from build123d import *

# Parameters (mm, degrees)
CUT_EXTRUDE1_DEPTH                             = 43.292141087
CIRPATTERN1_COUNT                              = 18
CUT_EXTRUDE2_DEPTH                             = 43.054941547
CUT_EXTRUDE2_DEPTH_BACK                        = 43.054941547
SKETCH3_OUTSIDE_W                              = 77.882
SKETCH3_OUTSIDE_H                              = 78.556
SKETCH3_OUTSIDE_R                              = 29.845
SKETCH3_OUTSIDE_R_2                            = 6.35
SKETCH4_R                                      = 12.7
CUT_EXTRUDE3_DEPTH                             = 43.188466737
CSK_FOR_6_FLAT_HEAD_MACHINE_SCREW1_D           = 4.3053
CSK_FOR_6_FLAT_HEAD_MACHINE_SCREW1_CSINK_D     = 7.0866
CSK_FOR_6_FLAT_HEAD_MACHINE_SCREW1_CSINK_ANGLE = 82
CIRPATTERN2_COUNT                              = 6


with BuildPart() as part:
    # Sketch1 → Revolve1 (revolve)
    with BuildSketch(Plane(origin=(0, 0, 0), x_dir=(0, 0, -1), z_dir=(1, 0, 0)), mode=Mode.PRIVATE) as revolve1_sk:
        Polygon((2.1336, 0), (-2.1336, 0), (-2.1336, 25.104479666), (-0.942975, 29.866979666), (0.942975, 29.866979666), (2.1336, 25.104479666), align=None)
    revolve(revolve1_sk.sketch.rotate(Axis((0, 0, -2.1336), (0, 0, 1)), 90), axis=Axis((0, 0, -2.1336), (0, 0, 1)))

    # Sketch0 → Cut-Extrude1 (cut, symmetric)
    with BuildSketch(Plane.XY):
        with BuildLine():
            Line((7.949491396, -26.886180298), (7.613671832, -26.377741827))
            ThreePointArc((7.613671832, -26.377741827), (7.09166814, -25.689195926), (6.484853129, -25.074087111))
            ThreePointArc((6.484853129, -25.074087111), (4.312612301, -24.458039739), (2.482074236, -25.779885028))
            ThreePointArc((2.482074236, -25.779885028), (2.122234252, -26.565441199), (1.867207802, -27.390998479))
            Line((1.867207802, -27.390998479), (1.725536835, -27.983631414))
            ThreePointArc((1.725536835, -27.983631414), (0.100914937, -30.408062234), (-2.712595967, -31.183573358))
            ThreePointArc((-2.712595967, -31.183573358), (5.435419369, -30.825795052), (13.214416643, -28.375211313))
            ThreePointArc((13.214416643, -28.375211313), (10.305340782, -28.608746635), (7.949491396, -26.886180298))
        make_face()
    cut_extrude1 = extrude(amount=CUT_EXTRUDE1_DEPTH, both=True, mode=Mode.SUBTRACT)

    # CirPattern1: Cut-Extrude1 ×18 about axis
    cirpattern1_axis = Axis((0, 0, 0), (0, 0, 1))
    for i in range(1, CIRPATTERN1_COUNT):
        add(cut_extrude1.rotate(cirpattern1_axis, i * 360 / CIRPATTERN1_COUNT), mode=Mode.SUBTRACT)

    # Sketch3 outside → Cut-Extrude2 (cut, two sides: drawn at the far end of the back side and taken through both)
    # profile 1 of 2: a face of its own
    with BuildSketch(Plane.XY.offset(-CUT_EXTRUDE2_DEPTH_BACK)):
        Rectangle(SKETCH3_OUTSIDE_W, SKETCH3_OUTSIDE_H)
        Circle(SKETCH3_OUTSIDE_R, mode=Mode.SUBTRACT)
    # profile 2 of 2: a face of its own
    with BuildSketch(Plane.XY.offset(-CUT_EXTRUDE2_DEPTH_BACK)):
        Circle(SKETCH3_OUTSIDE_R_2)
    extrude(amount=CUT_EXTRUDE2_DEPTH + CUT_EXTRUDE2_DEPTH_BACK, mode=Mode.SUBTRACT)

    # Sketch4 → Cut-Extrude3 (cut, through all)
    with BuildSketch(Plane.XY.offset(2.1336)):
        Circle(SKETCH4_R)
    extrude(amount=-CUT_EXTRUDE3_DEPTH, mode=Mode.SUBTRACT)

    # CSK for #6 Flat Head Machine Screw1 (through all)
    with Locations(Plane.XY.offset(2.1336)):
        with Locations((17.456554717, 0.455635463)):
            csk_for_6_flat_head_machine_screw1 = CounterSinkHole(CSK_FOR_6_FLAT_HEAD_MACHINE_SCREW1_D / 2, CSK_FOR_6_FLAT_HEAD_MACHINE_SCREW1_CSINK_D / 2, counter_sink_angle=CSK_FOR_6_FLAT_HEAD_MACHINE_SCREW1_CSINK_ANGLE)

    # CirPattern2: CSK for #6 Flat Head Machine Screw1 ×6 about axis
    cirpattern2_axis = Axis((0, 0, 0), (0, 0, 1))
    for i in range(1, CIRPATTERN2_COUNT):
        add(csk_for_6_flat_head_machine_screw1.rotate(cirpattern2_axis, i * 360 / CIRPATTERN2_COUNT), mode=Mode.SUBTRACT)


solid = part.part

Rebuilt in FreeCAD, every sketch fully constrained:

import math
import FreeCAD as App
import Part
import Sketcher
Q = App.Units.Quantity

doc = App.newDocument("Part")
body = doc.addObject("PartDesign::Body", "Body")

# Sketch on YZ plane
sketch1 = body.newObject("Sketcher::SketchObject", "Sketch")
sketch1.AttachmentSupport = (doc.getObject("YZ_Plane"), [""])
sketch1.MapMode = "FlatFace"
sketch1.addGeometry([
    Part.LineSegment(App.Vector(0, 2.1, 0), App.Vector(0, -2.1, 0)),  # 0
    Part.LineSegment(App.Vector(0, -2.1, 0), App.Vector(25.1, -2.1, 0)),  # 1
    Part.LineSegment(App.Vector(25.1, -2.1, 0), App.Vector(29.9, -0.9, 0)),  # 2
    Part.LineSegment(App.Vector(29.9, -0.9, 0), App.Vector(29.9, 0.9, 0)),  # 3
    Part.LineSegment(App.Vector(29.9, 0.9, 0), App.Vector(25.1, 2.1, 0)),  # 4
    Part.LineSegment(App.Vector(25.1, 2.1, 0), App.Vector(0, 2.1, 0)),  # 5
], False)
sketch1.addConstraint([
    Sketcher.Constraint("Coincident", 0, 2, 1, 1),
    Sketcher.Constraint("Coincident", 1, 2, 2, 1),
    Sketcher.Constraint("Coincident", 2, 2, 3, 1),
    Sketcher.Constraint("Coincident", 3, 2, 4, 1),
    Sketcher.Constraint("Coincident", 4, 2, 5, 1),
    Sketcher.Constraint("Coincident", 5, 2, 0, 1),
    Sketcher.Constraint("Vertical", 0),
    Sketcher.Constraint("Horizontal", 1),
    Sketcher.Constraint("Vertical", 3),
    Sketcher.Constraint("Horizontal", 5),
    Sketcher.Constraint("Symmetric", 0, 2, 5, 2, -1, 1),
    Sketcher.Constraint("Vertical", 1, 2, 4, 2),
    Sketcher.Constraint("Equal", 2, 4),
    Sketcher.Constraint("DistanceY", 0, 2, 0, 1, Q("0.168 in")),
    Sketcher.Constraint("DistanceX", 1, 2, 2, 2, Q("0.1875 in")),
    Sketcher.Constraint("DistanceY", 1, 2, 2, 2, Q("0.046875 in")),
    Sketcher.Constraint("DistanceX", 1, 1, 1, 2, Q("25.10448 mm")),
])
revolution = body.newObject("PartDesign::Revolution", "Revolution")
revolution.Profile = sketch1
revolution.ReferenceAxis = (sketch1, ["V_Axis"])
revolution.Angle = 360

# Sketch on XY plane
sketch2 = body.newObject("Sketcher::SketchObject", "Sketch001")
sketch2.AttachmentSupport = (doc.getObject("XY_Plane"), [""])
sketch2.MapMode = "FlatFace"
sketch2.addGeometry([
    Part.LineSegment(App.Vector(7.9, -26.9, 0), App.Vector(7.6, -26.4, 0)),  # 0
    Part.ArcOfCircle(Part.Circle(App.Vector(2.1, -30, 0), App.Vector(0, 0, 1), 6.7), math.radians(33.44), math.radians(48.33)),  # 1
    Part.ArcOfCircle(Part.Circle(App.Vector(4.8, -27, 0), App.Vector(0, 0, 1), 2.6), math.radians(48), math.radians(152)),  # 2
    Part.ArcOfCircle(Part.Circle(App.Vector(8.3, -28.9, 0), App.Vector(0, 0, 1), 6.7), math.radians(151.67), math.radians(166.56)),  # 3
    Part.LineSegment(App.Vector(1.9, -27.4, 0), App.Vector(1.7, -28, 0)),  # 4
    Part.ArcOfCircle(Part.Circle(App.Vector(-2.3, -27, 0), App.Vector(0, 0, 1), 4.2), math.radians(-95), math.radians(-13)),  # 5
    Part.ArcOfCircle(Part.Circle(App.Vector(0, 0, 0), App.Vector(0, 0, 1), 31.3), math.radians(-95), math.radians(-65)),  # 6
    Part.ArcOfCircle(Part.Circle(App.Vector(11.4, -24.6, 0), App.Vector(0, 0, 1), 4.2), math.radians(-147), math.radians(-65)),  # 7
], False)
sketch2.addConstraint([
    Sketcher.Constraint("Tangent", 0, 2, 1, 1),
    Sketcher.Constraint("Tangent", 1, 2, 2, 1),
    Sketcher.Constraint("Tangent", 2, 2, 3, 1),
    Sketcher.Constraint("Tangent", 3, 2, 4, 1),
    Sketcher.Constraint("Tangent", 4, 2, 5, 2),
    Sketcher.Constraint("Tangent", 5, 1, 6, 1),
    Sketcher.Constraint("Tangent", 6, 2, 7, 2),
    Sketcher.Constraint("Tangent", 7, 1, 0, 1),
    Sketcher.Constraint("Coincident", 6, 3, -1, 1),
    Sketcher.Constraint("Equal", 1, 3),
    Sketcher.Constraint("Equal", 5, 7),
    Sketcher.Constraint("Horizontal", 2, 3, 5, 3),
    Sketcher.Constraint("Equal", 0, 4),
    Sketcher.Constraint("Radius", 1, Q("0.262 in")),
    Sketcher.Constraint("Radius", 2, Q("0.102 in")),
    Sketcher.Constraint("DistanceX", 5, 3, 2, 3, Q("0.28 in")),
    Sketcher.Constraint("DistanceX", -1, 1, 2, 3, Q("0.1875 in")),
    Sketcher.Constraint("Radius", 5, Q("4.189856 mm")),
    Sketcher.Constraint("Radius", 6, Q("31.301333 mm")),
    Sketcher.Constraint("DistanceY", 3, 2, -1, 1, Q("27.390998 mm")),
    Sketcher.Constraint("DistanceY", 2, 3, 7, 1, Q("0.123299 mm")),
])
pocket1 = body.newObject("PartDesign::Pocket", "Pocket")
pocket1.Profile = sketch2
pocket1.Length = 86.584282
pocket1.Midplane = True
doc.recompute()

polarpattern = body.newObject("PartDesign::PolarPattern", "PolarPattern")
polarpattern.Originals = [pocket1]
polarpattern.Axis = (doc.getObject("Z_Axis"), [""])
polarpattern.Angle = 360
polarpattern.Occurrences = 18
body.Tip = polarpattern

# Sketch on XY plane
sketch3 = body.newObject("Sketcher::SketchObject", "Sketch002")
sketch3.AttachmentSupport = (doc.getObject("XY_Plane"), [""])
sketch3.MapMode = "FlatFace"
sketch3.addGeometry([
    Part.LineSegment(App.Vector(-39, 39, 0), App.Vector(-39, -39, 0)),  # 0
    Part.LineSegment(App.Vector(-39, -39, 0), App.Vector(39, -39, 0)),  # 1
    Part.LineSegment(App.Vector(39, -39, 0), App.Vector(39, 39, 0)),  # 2
    Part.LineSegment(App.Vector(39, 39, 0), App.Vector(-39, 39, 0)),  # 3
    Part.Circle(App.Vector(0, 0, 0), App.Vector(0, 0, 1), 30),  # 4
    Part.Circle(App.Vector(0, 0, 0), App.Vector(0, 0, 1), 6),  # 5
], False)
sketch3.addConstraint([
    Sketcher.Constraint("Coincident", 0, 2, 1, 1),
    Sketcher.Constraint("Coincident", 1, 2, 2, 1),
    Sketcher.Constraint("Coincident", 2, 2, 3, 1),
    Sketcher.Constraint("Coincident", 3, 2, 0, 1),
    Sketcher.Constraint("Vertical", 0),
    Sketcher.Constraint("Horizontal", 1),
    Sketcher.Constraint("Vertical", 2),
    Sketcher.Constraint("Horizontal", 3),
    Sketcher.Constraint("Coincident", 4, 3, -1, 1),
    Sketcher.Constraint("Coincident", 5, 3, -1, 1),
    Sketcher.Constraint("Symmetric", 0, 2, 2, 2, -1, 1),
    Sketcher.Constraint("Diameter", 5, Q("0.5 in")),
    Sketcher.Constraint("Diameter", 4, Q("2.35 in")),
    Sketcher.Constraint("DistanceX", 1, 1, 1, 2, Q("77.882 mm")),
    Sketcher.Constraint("DistanceY", 0, 2, 0, 1, Q("78.556 mm")),
])
pocket2 = body.newObject("PartDesign::Pocket", "Pocket001")
pocket2.Profile = sketch3
pocket2.Type = "ThroughAll"
pocket2.Midplane = True

# Sketch on XY plane
sketch4 = body.newObject("Sketcher::SketchObject", "Sketch003")
sketch4.AttachmentSupport = (doc.getObject("XY_Plane"), [""])
sketch4.MapMode = "FlatFace"
sketch4.AttachmentOffset = App.Placement(App.Vector(0, 0, 0.084 * 25.4), App.Rotation())
sketch4.addGeometry(Part.Circle(App.Vector(0, 0, 0), App.Vector(0, 0, 1), 13), False)
sketch4.addConstraint([
    Sketcher.Constraint("Coincident", 0, 3, -1, 1),
    Sketcher.Constraint("Diameter", 0, Q("1 in")),
])
pocket3 = body.newObject("PartDesign::Pocket", "Pocket002")
pocket3.Profile = sketch4
pocket3.Type = "ThroughAll"

# Sketch on XY plane
sketch5 = body.newObject("Sketcher::SketchObject", "Sketch004")
sketch5.AttachmentSupport = (doc.getObject("XY_Plane"), [""])
sketch5.MapMode = "FlatFace"
sketch5.AttachmentOffset = App.Placement(App.Vector(0, 0, 0.084 * 25.4), App.Rotation())
sketch5.addGeometry(Part.Circle(App.Vector(17.5, 0.5, 0), App.Vector(0, 0, 1), 2.2), False)
sketch5.addConstraint([
    Sketcher.Constraint("Diameter", 0, Q("0.1695 in")),
    Sketcher.Constraint("DistanceX", -1, 1, 0, 3, Q("17.456555 mm")),
    Sketcher.Constraint("DistanceY", -1, 1, 0, 3, Q("0.455635 mm")),
])
doc.recompute()
hole = body.newObject("PartDesign::Hole", "Hole")
hole.Profile = sketch5
hole.ThreadType = "None"
hole.Diameter = Q("0.1695 in")
hole.DepthType = "ThroughAll"
hole.HoleCutType = "Countersink"
hole.HoleCutDiameter = Q("0.279 in")
hole.HoleCutCountersinkAngle = 82
doc.recompute()

polarpattern2 = body.newObject("PartDesign::PolarPattern", "PolarPattern001")
polarpattern2.Originals = [hole]
polarpattern2.Axis = (doc.getObject("Z_Axis"), [""])
polarpattern2.Angle = 360
polarpattern2.Occurrences = 6
body.Tip = polarpattern2

doc.recompute()
